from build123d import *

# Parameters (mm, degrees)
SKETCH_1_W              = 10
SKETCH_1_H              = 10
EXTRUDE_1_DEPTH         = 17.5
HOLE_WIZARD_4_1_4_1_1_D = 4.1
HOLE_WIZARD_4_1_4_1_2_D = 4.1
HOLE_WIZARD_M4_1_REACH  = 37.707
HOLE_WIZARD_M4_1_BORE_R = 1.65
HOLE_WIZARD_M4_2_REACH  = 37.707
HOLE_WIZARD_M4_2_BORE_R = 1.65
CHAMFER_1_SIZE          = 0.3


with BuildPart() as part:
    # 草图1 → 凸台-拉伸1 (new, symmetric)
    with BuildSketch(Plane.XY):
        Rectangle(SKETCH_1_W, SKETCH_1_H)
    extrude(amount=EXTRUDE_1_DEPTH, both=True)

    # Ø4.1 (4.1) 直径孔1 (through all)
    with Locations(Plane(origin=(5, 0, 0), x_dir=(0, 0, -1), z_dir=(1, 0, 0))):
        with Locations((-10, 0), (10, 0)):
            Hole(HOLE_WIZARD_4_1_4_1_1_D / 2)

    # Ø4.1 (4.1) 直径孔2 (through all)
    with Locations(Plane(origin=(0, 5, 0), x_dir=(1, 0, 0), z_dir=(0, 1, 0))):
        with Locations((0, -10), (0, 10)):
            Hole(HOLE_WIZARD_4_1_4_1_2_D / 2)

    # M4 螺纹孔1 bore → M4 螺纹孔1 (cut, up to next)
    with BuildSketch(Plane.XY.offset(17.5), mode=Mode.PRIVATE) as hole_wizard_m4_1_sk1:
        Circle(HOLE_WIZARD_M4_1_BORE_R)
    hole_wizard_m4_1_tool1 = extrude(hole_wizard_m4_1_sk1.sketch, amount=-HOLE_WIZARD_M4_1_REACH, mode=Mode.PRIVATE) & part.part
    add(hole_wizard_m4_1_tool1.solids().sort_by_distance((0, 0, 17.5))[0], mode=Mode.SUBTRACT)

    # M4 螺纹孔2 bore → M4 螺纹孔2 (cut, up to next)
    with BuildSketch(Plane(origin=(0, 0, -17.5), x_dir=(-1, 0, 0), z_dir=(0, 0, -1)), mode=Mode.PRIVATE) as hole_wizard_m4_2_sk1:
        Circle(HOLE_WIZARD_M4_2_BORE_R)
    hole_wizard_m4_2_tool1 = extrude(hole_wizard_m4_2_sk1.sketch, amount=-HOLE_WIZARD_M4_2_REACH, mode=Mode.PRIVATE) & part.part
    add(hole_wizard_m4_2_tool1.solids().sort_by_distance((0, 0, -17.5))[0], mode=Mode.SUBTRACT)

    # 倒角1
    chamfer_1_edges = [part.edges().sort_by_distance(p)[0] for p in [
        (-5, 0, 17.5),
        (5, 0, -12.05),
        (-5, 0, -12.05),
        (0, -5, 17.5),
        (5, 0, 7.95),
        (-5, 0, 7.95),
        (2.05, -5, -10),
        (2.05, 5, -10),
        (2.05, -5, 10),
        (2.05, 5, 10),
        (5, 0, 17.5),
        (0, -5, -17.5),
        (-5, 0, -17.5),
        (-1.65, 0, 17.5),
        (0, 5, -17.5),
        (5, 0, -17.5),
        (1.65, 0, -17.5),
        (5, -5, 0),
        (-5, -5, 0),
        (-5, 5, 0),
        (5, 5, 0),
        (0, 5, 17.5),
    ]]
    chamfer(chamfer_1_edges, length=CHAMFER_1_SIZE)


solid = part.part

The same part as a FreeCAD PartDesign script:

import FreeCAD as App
import Part
import Sketcher


def edges_at(feature, points):
    """Names of the edges that pass closest to the given points."""
    edges = feature.Shape.Edges
    near = lambda p: min(range(len(edges)), key=lambda i: edges[i].distToShape(Part.Vertex(*p))[0])
    return sorted({f"Edge{near(p) + 1}" for p in points})


def add_polygon(sketch, points):
    """Adds a closed chain of lines whose ends are joined by coincident constraints."""
    first, n = sketch.GeometryCount, len(points)
    for a, b in zip(points, points[1:] + points[:1]):
        sketch.addGeometry(Part.LineSegment(App.Vector(*a, 0), App.Vector(*b, 0)), False)
    for i in range(n):
        sketch.addConstraint(Sketcher.Constraint("Coincident", first + i, 2, first + (i + 1) % n, 1))

doc = App.newDocument("Part")
body = doc.addObject("PartDesign::Body", "Body")

# Sketch on XY plane
sketch1 = body.newObject("Sketcher::SketchObject", "Sketch")
sketch1.AttachmentSupport = (doc.getObject("XY_Plane"), [""])
sketch1.MapMode = "FlatFace"
add_polygon(sketch1, [(-5, 5), (-5, -5), (5, -5), (5, 5)])  # lines 0-3
sketch1.addConstraint([
    Sketcher.Constraint("Vertical", 0),
    Sketcher.Constraint("Horizontal", 1),
    Sketcher.Constraint("Vertical", 2),
    Sketcher.Constraint("Horizontal", 3),
    Sketcher.Constraint("Symmetric", 0, 2, 2, 2, -1, 1),
    Sketcher.Constraint("Equal", 3, 0),
    Sketcher.Constraint("DistanceX", 1, 1, 1, 2, 10.0),
])
pad1 = body.newObject("PartDesign::Pad", "Pad")
pad1.Profile = sketch1
pad1.Length = 35
pad1.Midplane = True

# Sketch on YZ plane
sketch2 = body.newObject("Sketcher::SketchObject", "Sketch001")
sketch2.AttachmentSupport = (doc.getObject("YZ_Plane"), [""])
sketch2.MapMode = "FlatFace"
sketch2.AttachmentOffset = App.Placement(App.Vector(0, 0, 5), App.Rotation())
sketch2.addGeometry([
    Part.Circle(App.Vector(0, 10, 0), App.Vector(0, 0, 1), 2),
    Part.Circle(App.Vector(0, -10, 0), App.Vector(0, 0, 1), 2),
], False)
sketch2.addConstraint([
    Sketcher.Constraint("Equal", 0, 1),
    Sketcher.Constraint("Symmetric", 0, 3, 1, 3, -1, 1),
    Sketcher.Constraint("PointOnObject", 0, 3, -2),
    Sketcher.Constraint("Diameter", 0, 4.1),
    Sketcher.Constraint("DistanceY", -1, 1, 0, 3, 10.0),
])
doc.recompute()
hole = body.newObject("PartDesign::Hole", "Hole")
hole.Profile = sketch2
hole.ThreadType = "None"
hole.Diameter = 4.1
hole.DepthType = "ThroughAll"

# Sketch on XZ plane
sketch3 = body.newObject("Sketcher::SketchObject", "Sketch002")
sketch3.AttachmentSupport = (doc.getObject("XZ_Plane"), [""])
sketch3.MapMode = "FlatFace"
sketch3.AttachmentOffset = App.Placement(App.Vector(0, 0, -5), App.Rotation())
sketch3.addGeometry([
    Part.Circle(App.Vector(0, 10, 0), App.Vector(0, 0, 1), 2),
    Part.Circle(App.Vector(0, -10, 0), App.Vector(0, 0, 1), 2),
], False)
sketch3.addConstraint([
    Sketcher.Constraint("Equal", 0, 1),
    Sketcher.Constraint("Symmetric", 0, 3, 1, 3, -1, 1),
    Sketcher.Constraint("PointOnObject", 0, 3, -2),
    Sketcher.Constraint("Diameter", 0, 4.1),
    Sketcher.Constraint("DistanceY", -1, 1, 0, 3, 10.0),
])
doc.recompute()
hole2 = body.newObject("PartDesign::Hole", "Hole001")
hole2.Profile = sketch3
hole2.ThreadType = "None"
hole2.Diameter = 4.1
hole2.DepthType = "ThroughAll"
hole2.Reversed = True

# Sketch on XY plane
sketch4 = body.newObject("Sketcher::SketchObject", "Sketch003")
sketch4.AttachmentSupport = (doc.getObject("XY_Plane"), [""])
sketch4.MapMode = "FlatFace"
sketch4.AttachmentOffset = App.Placement(App.Vector(0, 0, 17.5), App.Rotation())
sketch4.addGeometry(Part.Circle(App.Vector(0, 0, 0), App.Vector(0, 0, 1), 1.6), False)
sketch4.addConstraint([
    Sketcher.Constraint("Coincident", 0, 3, -1, 1),
    Sketcher.Constraint("Diameter", 0, 3.3),
])
pocket1 = body.newObject("PartDesign::Pocket", "Pocket")
pocket1.Profile = sketch4
pocket1.Length = 5.814399

# Sketch on XY plane
sketch5 = body.newObject("Sketcher::SketchObject", "Sketch004")
sketch5.AttachmentSupport = (doc.getObject("XY_Plane"), [""])
sketch5.MapMode = "FlatFace"
sketch5.AttachmentOffset = App.Placement(App.Vector(0, 0, -17.5), App.Rotation())
sketch5.addGeometry(Part.Circle(App.Vector(0, 0, 0), App.Vector(0, 0, 1), 1.6), False)
sketch5.addConstraint([
    Sketcher.Constraint("Coincident", 0, 3, -1, 1),
    Sketcher.Constraint("Diameter", 0, 3.3),
])
pocket2 = body.newObject("PartDesign::Pocket", "Pocket001")
pocket2.Profile = sketch5
pocket2.Length = 5.814399
pocket2.Reversed = True
doc.recompute()

chamfer = body.newObject("PartDesign::Chamfer", "Chamfer")
chamfer.Base = (pocket2, edges_at(pocket2, [
    (-5, 0, 17.5),
    (5, 0, -12.05),
    (-5, 0, -12.05),
    (0, -5, 17.5),
    (5, 0, 7.95),
    (-5, 0, 7.95),
    (2.05, -5, -10),
    (2.05, 5, -10),
    (2.05, -5, 10),
    (2.05, 5, 10),
    (5, 0, 17.5),
    (0, -5, -17.5),
    (-5, 0, -17.5),
    (-1.65, 0, 17.5),
    (0, 5, -17.5),
    (5, 0, -17.5),
    (1.65, 0, -17.5),
    (5, -5, 0),
    (-5, -5, 0),
    (-5, 5, 0),
    (5, 5, 0),
    (0, 5, 17.5),
]))
chamfer.Size = 0.3

doc.recompute()
